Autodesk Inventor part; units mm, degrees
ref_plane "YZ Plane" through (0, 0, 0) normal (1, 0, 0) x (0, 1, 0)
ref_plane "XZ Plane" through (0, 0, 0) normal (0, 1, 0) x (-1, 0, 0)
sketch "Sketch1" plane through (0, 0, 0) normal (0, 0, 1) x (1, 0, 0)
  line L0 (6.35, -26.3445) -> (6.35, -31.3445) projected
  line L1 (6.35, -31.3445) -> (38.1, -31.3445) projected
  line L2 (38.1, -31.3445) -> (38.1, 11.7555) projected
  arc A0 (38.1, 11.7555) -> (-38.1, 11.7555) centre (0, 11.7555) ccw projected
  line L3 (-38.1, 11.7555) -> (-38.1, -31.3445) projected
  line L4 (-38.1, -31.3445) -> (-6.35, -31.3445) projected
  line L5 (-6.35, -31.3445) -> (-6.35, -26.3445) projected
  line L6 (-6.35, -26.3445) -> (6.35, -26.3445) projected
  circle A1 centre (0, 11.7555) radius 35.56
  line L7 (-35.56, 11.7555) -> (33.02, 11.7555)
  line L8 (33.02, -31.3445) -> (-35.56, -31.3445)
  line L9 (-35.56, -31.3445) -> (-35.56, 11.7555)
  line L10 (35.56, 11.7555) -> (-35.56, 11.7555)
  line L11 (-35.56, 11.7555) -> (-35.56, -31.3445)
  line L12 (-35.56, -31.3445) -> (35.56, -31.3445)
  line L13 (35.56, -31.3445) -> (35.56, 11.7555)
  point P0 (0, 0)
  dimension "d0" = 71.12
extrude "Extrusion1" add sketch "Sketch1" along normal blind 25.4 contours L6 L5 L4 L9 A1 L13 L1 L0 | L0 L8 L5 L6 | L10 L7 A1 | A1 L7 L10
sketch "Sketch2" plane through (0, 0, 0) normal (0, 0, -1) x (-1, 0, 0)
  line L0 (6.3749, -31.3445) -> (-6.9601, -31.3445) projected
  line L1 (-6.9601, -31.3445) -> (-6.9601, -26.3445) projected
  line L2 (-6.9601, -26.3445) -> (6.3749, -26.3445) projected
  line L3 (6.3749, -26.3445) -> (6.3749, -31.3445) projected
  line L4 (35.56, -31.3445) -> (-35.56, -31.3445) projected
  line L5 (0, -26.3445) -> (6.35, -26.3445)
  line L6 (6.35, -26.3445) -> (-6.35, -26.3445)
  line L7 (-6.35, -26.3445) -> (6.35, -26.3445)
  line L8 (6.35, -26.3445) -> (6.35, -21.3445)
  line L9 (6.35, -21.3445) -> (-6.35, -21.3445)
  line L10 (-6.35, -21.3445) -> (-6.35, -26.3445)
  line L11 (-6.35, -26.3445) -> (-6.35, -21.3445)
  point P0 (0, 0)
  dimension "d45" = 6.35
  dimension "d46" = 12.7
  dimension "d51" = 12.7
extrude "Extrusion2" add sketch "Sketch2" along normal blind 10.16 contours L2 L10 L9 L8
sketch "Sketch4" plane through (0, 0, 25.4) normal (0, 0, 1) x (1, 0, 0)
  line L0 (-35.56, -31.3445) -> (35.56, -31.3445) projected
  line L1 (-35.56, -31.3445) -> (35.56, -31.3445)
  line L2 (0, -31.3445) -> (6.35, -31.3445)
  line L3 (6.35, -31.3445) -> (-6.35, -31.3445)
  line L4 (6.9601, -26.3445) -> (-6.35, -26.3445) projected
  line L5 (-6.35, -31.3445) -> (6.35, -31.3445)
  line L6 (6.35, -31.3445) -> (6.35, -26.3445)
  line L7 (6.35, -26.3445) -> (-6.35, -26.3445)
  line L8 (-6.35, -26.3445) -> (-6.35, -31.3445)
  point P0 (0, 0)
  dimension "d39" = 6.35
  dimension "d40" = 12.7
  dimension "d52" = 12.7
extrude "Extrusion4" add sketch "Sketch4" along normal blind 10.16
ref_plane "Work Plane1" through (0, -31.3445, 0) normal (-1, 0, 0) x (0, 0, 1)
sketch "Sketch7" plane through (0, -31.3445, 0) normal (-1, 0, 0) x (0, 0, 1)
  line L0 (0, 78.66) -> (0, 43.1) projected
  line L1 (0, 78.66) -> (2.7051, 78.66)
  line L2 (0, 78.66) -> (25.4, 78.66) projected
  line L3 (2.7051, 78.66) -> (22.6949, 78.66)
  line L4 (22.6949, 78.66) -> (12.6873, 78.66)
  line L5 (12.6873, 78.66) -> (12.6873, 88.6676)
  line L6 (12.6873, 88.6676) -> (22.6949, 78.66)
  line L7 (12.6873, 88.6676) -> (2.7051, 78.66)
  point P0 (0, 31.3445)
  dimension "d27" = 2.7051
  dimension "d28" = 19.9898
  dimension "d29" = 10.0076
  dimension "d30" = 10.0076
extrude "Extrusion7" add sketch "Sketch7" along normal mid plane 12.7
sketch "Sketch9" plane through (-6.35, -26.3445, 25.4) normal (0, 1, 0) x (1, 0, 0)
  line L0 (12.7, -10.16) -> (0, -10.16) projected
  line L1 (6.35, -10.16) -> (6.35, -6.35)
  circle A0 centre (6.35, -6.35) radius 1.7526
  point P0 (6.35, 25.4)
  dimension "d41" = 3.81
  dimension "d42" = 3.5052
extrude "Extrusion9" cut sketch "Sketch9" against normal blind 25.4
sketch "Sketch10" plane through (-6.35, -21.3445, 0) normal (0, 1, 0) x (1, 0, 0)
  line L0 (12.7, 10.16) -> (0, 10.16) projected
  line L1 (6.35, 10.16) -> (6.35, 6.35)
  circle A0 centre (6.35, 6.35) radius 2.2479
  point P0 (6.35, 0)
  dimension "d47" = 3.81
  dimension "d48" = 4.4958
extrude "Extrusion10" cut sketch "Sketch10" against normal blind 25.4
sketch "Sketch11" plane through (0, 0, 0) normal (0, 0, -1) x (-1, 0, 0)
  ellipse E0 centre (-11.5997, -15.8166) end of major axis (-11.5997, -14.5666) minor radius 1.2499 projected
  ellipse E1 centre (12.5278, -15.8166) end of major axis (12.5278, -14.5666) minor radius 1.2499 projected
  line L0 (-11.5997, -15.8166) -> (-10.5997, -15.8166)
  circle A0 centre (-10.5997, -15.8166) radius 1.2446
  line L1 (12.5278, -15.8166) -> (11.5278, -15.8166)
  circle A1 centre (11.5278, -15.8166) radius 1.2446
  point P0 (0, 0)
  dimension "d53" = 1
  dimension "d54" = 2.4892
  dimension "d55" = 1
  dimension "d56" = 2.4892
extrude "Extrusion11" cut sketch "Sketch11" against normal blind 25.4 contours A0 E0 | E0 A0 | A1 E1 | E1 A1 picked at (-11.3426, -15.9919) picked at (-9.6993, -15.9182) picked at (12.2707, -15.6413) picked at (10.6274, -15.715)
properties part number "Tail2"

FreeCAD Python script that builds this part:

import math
import FreeCAD as App
import Part
import Sketcher
from FreeCAD import Vector
Q = App.Units.Quantity

doc = App.newDocument("Part")
body = doc.addObject("PartDesign::Body", "Body")
body.AllowCompound = True

sketch1 = body.newObject("Sketcher::SketchObject", "Sketch")
sketch1.AttachmentSupport = (doc.getObject("XY_Plane"), [""])
sketch1.MapMode = "FlatFace"
sketch1.addGeometry(Part.LineSegment(Vector(-36, -31, 0), Vector(36, -31, 0)), False)
sketch1.addGeometry(Part.LineSegment(Vector(36, -31, 0), Vector(36, 12, 0)), False)
sketch1.addGeometry(Part.ArcOfCircle(Part.Circle(Vector(0, 12, 0), Vector(0, 0, 1), 36), math.radians(0), math.radians(180)), False)
sketch1.addGeometry(Part.LineSegment(Vector(-36, 12, 0), Vector(-36, -31, 0)), False)
sketch1.addConstraint(Sketcher.Constraint("Coincident", 0, 2, 1, 1))
sketch1.addConstraint(Sketcher.Constraint("Tangent", 1, 2, 2, 1))
sketch1.addConstraint(Sketcher.Constraint("Tangent", 2, 2, 3, 1))
sketch1.addConstraint(Sketcher.Constraint("Coincident", 3, 2, 0, 1))
sketch1.addConstraint(Sketcher.Constraint("Horizontal", 0))
sketch1.addConstraint(Sketcher.Constraint("Vertical", 1))
sketch1.addConstraint(Sketcher.Constraint("Vertical", 3))
sketch1.addConstraint(Sketcher.Constraint("PointOnObject", 2, 3, -2))
sketch1.addConstraint(Sketcher.Constraint("Radius", 2, Q("1.4 in")))
sketch1.addConstraint(Sketcher.Constraint("DistanceY", 1, 1, 1, 2, Q("43.1 mm")))
sketch1.addConstraint(Sketcher.Constraint("DistanceY", -1, 1, 2, 3, Q("11.7555 mm")))
pad1 = body.newObject("PartDesign::Pad", "Pad")
pad1.Profile = sketch1
pad1.Length = Q("1 in")

sketch2 = body.newObject("Sketcher::SketchObject", "Sketch001")
sketch2.AttachmentSupport = (doc.getObject("XY_Plane"), [""])
sketch2.MapMode = "FlatFace"
sketch2.addGeometry(Part.LineSegment(Vector(6, -26, 0), Vector(-6, -26, 0)), False)
sketch2.addGeometry(Part.LineSegment(Vector(-6, -26, 0), Vector(-6, -21, 0)), False)
sketch2.addGeometry(Part.LineSegment(Vector(-6, -21, 0), Vector(6, -21, 0)), False)
sketch2.addGeometry(Part.LineSegment(Vector(6, -21, 0), Vector(6, -26, 0)), False)
sketch2.addConstraint(Sketcher.Constraint("Coincident", 0, 2, 1, 1))
sketch2.addConstraint(Sketcher.Constraint("Coincident", 1, 2, 2, 1))
sketch2.addConstraint(Sketcher.Constraint("Coincident", 2, 2, 3, 1))
sketch2.addConstraint(Sketcher.Constraint("Coincident", 3, 2, 0, 1))
sketch2.addConstraint(Sketcher.Constraint("Horizontal", 0))
sketch2.addConstraint(Sketcher.Constraint("Vertical", 1))
sketch2.addConstraint(Sketcher.Constraint("Horizontal", 2))
sketch2.addConstraint(Sketcher.Constraint("Vertical", 3))
sketch2.addConstraint(Sketcher.Constraint("DistanceX", 0, 2, 0, 1, Q("0.5 in")))
sketch2.addConstraint(Sketcher.Constraint("DistanceX", 0, 2, -1, 1, Q("0.25 in")))
sketch2.addConstraint(Sketcher.Constraint("DistanceY", 1, 1, 1, 2, Q("5 mm")))
sketch2.addConstraint(Sketcher.Constraint("DistanceY", 0, 2, -1, 1, Q("26.3445 mm")))
pad2 = body.newObject("PartDesign::Pad", "Pad001")
pad2.Profile = sketch2
pad2.Length = Q("0.4 in")
pad2.Reversed = True

sketch3 = body.newObject("Sketcher::SketchObject", "Sketch002")
sketch3.AttachmentSupport = (doc.getObject("XY_Plane"), [""])
sketch3.MapMode = "FlatFace"
sketch3.AttachmentOffset = App.Placement(Vector(0, 0, 1 * 25.4), App.Rotation())
sketch3.addGeometry(Part.LineSegment(Vector(-6, -26, 0), Vector(-6, -31, 0)), False)
sketch3.addGeometry(Part.LineSegment(Vector(-6, -31, 0), Vector(6, -31, 0)), False)
sketch3.addGeometry(Part.LineSegment(Vector(6, -31, 0), Vector(6, -26, 0)), False)
sketch3.addGeometry(Part.LineSegment(Vector(6, -26, 0), Vector(-6, -26, 0)), False)
sketch3.addConstraint(Sketcher.Constraint("Coincident", 0, 2, 1, 1))
sketch3.addConstraint(Sketcher.Constraint("Coincident", 1, 2, 2, 1))
sketch3.addConstraint(Sketcher.Constraint("Coincident", 2, 2, 3, 1))
sketch3.addConstraint(Sketcher.Constraint("Coincident", 3, 2, 0, 1))
sketch3.addConstraint(Sketcher.Constraint("Vertical", 0))
sketch3.addConstraint(Sketcher.Constraint("Horizontal", 1))
sketch3.addConstraint(Sketcher.Constraint("Vertical", 2))
sketch3.addConstraint(Sketcher.Constraint("Horizontal", 3))
sketch3.addConstraint(Sketcher.Constraint("DistanceX", 1, 1, 1, 2, Q("0.5 in")))
sketch3.addConstraint(Sketcher.Constraint("DistanceX", 0, 2, -1, 1, Q("0.25 in")))
sketch3.addConstraint(Sketcher.Constraint("DistanceY", 0, 2, 0, 1, Q("5 mm")))
sketch3.addConstraint(Sketcher.Constraint("DistanceY", 0, 2, -1, 1, Q("31.3445 mm")))
pad3 = body.newObject("PartDesign::Pad", "Pad002")
pad3.Profile = sketch3
pad3.Length = Q("0.4 in")

sketch4 = body.newObject("Sketcher::SketchObject", "Sketch003")
sketch4.AttachmentSupport = (doc.getObject("YZ_Plane"), [""])
sketch4.MapMode = "FlatFace"
sketch4.addGeometry(Part.LineSegment(Vector(57, 13, 0), Vector(47, 3, 0)), False)
sketch4.addGeometry(Part.LineSegment(Vector(47, 3, 0), Vector(47, 23, 0)), False)
sketch4.addGeometry(Part.LineSegment(Vector(47, 23, 0), Vector(57, 13, 0)), False)
sketch4.addConstraint(Sketcher.Constraint("Coincident", 0, 2, 1, 1))
sketch4.addConstraint(Sketcher.Constraint("Coincident", 1, 2, 2, 1))
sketch4.addConstraint(Sketcher.Constraint("Coincident", 2, 2, 0, 1))
sketch4.addConstraint(Sketcher.Constraint("Vertical", 1))
sketch4.addConstraint(Sketcher.Constraint("DistanceY", 1, 1, 1, 2, Q("0.787 in")))
sketch4.addConstraint(Sketcher.Constraint("Angle", 2, Q("-45 deg")))
sketch4.addConstraint(Sketcher.Constraint("DistanceX", 0, 2, 2, 2, Q("0.394 in")))
sketch4.addConstraint(Sketcher.Constraint("DistanceY", -1, 1, 0, 2, Q("0.1065 in")))
sketch4.addConstraint(Sketcher.Constraint("DistanceX", -1, 1, 0, 2, Q("47.3155 mm")))
pad4 = body.newObject("PartDesign::Pad", "Pad003")
pad4.Profile = sketch4
pad4.Length = Q("0.5 in")
pad4.Midplane = True

sketch5 = body.newObject("Sketcher::SketchObject", "Sketch004")
sketch5.AttachmentSupport = (doc.getObject("XZ_Plane"), [""])
sketch5.MapMode = "FlatFace"
sketch5.AttachmentOffset = App.Placement(Vector(0, 0, 26.3445), App.Rotation())
sketch5.addGeometry(Part.Circle(Vector(0, 31.8, 0), Vector(0, 0, 1), 1.8), False)
sketch5.addConstraint(Sketcher.Constraint("PointOnObject", 0, 3, -2))
sketch5.addConstraint(Sketcher.Constraint("Diameter", 0, Q("0.138 in")))
sketch5.addConstraint(Sketcher.Constraint("DistanceY", -1, 1, 0, 3, Q("1.25 in")))
pocket1 = body.newObject("PartDesign::Pocket", "Pocket")
pocket1.Profile = sketch5
pocket1.Length = Q("1 in")
pocket1.Reversed = True

sketch6 = body.newObject("Sketcher::SketchObject", "Sketch005")
sketch6.AttachmentSupport = (doc.getObject("XZ_Plane"), [""])
sketch6.MapMode = "FlatFace"
sketch6.AttachmentOffset = App.Placement(Vector(0, 0, 21.3445), App.Rotation())
sketch6.addGeometry(Part.Circle(Vector(0, -6.3, 0), Vector(0, 0, 1), 2.2), False)
sketch6.addConstraint(Sketcher.Constraint("PointOnObject", 0, 3, -2))
sketch6.addConstraint(Sketcher.Constraint("Diameter", 0, Q("0.177 in")))
sketch6.addConstraint(Sketcher.Constraint("DistanceY", 0, 3, -1, 1, Q("0.25 in")))
pocket2 = body.newObject("PartDesign::Pocket", "Pocket001")
pocket2.Profile = sketch6
pocket2.Length = Q("1 in")
pocket2.Reversed = True

sketch7 = body.newObject("Sketcher::SketchObject", "Sketch006")
sketch7.AttachmentSupport = (doc.getObject("XY_Plane"), [""])
sketch7.MapMode = "FlatFace"
sketch7.addGeometry(Part.Circle(Vector(10.6, -15.8, 0), Vector(0, 0, 1), 1.2), False)
sketch7.addGeometry(Part.Circle(Vector(-11.5, -15.8, 0), Vector(0, 0, 1), 1.2), False)
sketch7.addConstraint(Sketcher.Constraint("Equal", 0, 1))
sketch7.addConstraint(Sketcher.Constraint("Horizontal", 0, 3, 1, 3))
sketch7.addConstraint(Sketcher.Constraint("Diameter", 0, Q("0.098 in")))
sketch7.addConstraint(Sketcher.Constraint("DistanceX", -1, 1, 0, 3, Q("0.4173 in")))
sketch7.addConstraint(Sketcher.Constraint("DistanceY", 0, 3, -1, 1, Q("0.6227 in")))
sketch7.addConstraint(Sketcher.Constraint("DistanceX", 1, 3, -1, 1, Q("11.5278 mm")))
pocket3 = body.newObject("PartDesign::Pocket", "Pocket002")
pocket3.Profile = sketch7
pocket3.Length = Q("1 in")
pocket3.Reversed = True

doc.recompute()
